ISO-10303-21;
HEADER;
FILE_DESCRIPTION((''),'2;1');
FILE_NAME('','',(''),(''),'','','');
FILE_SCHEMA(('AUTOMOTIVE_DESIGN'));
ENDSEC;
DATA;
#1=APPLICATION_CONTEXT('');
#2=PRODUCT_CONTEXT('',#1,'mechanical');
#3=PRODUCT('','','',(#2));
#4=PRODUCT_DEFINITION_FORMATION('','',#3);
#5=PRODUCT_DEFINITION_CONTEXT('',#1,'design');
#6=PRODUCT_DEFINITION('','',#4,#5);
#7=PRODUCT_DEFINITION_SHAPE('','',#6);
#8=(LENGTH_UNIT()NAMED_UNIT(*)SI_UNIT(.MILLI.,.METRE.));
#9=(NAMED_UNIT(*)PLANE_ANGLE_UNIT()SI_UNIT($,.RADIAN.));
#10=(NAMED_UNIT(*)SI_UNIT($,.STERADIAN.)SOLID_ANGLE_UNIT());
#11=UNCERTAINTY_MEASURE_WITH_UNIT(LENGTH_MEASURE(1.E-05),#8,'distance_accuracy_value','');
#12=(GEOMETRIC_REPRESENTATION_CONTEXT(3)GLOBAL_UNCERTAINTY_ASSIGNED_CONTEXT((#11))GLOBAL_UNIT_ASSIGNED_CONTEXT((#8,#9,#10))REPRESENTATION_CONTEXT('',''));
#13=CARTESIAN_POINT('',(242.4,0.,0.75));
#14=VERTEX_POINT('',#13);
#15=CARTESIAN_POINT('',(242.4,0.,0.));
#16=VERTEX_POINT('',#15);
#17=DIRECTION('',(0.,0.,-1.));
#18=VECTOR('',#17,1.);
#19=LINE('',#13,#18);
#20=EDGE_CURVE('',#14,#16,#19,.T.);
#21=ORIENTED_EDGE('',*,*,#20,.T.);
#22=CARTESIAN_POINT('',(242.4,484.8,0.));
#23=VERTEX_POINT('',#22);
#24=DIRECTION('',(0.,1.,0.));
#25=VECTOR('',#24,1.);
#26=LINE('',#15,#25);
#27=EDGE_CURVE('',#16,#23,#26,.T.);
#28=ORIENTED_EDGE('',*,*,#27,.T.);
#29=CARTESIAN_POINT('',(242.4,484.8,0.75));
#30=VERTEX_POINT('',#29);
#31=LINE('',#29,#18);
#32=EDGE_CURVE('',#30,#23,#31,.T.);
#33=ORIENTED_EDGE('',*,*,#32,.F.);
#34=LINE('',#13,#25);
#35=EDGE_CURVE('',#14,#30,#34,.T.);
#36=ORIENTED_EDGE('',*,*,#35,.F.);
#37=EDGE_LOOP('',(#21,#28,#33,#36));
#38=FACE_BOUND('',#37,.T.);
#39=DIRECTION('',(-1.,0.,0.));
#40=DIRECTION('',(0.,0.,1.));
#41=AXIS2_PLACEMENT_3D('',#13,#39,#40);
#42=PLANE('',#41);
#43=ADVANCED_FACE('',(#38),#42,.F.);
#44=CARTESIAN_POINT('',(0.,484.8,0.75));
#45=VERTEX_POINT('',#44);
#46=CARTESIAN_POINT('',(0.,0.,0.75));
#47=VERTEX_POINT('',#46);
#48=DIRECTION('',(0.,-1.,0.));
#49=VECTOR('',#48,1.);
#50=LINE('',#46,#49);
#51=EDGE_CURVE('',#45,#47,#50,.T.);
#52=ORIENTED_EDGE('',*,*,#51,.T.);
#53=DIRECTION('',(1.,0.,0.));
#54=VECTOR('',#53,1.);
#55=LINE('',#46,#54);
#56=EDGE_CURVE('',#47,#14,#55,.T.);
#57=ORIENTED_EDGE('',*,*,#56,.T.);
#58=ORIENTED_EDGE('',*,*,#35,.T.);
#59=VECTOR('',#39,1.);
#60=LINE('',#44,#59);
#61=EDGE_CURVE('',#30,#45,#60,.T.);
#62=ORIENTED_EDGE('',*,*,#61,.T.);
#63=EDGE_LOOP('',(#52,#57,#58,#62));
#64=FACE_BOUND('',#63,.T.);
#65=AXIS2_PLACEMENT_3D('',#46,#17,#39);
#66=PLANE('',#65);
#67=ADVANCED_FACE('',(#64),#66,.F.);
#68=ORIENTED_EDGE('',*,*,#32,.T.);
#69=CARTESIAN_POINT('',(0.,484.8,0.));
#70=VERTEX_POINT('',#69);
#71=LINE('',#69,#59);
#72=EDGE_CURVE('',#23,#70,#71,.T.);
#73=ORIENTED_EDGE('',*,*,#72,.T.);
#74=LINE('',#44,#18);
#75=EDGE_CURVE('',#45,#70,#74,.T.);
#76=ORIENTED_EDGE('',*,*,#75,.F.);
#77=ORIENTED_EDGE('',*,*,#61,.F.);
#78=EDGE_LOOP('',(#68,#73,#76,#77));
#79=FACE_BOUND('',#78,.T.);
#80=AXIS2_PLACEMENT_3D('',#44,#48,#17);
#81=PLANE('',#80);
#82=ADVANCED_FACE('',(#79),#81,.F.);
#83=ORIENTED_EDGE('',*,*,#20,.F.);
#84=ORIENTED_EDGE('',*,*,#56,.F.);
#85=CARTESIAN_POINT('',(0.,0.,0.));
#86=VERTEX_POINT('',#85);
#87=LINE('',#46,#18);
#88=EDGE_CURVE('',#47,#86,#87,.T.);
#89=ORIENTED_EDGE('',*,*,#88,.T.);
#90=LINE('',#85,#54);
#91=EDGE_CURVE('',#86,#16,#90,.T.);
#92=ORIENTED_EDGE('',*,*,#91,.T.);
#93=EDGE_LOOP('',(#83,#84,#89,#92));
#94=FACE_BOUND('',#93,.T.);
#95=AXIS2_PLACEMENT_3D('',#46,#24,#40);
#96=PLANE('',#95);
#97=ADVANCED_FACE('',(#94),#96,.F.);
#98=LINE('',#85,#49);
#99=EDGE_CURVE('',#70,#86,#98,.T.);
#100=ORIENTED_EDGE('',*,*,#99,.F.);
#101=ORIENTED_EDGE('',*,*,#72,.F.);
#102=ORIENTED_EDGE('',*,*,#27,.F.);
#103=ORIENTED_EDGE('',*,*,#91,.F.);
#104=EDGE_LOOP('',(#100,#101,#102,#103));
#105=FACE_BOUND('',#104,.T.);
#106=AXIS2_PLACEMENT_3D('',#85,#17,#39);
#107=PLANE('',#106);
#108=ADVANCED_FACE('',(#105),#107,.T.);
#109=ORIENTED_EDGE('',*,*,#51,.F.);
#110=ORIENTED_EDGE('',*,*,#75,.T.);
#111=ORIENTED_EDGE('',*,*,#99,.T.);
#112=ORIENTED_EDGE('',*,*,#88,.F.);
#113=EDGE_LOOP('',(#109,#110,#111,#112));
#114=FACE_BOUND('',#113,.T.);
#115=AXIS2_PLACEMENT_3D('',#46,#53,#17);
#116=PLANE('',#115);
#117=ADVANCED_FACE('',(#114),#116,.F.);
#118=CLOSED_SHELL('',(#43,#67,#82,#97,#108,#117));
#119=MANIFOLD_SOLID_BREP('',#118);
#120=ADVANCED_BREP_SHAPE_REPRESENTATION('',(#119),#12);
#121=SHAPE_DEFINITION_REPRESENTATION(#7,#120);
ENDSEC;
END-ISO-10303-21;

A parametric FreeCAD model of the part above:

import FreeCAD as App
import Part
import Sketcher
from FreeCAD import Vector


def add_polygon(sketch, points):
    """Adds a closed chain of lines whose ends are joined by coincident constraints."""
    first, n = sketch.GeometryCount, len(points)
    for a, b in zip(points, points[1:] + points[:1]):
        sketch.addGeometry(Part.LineSegment(App.Vector(*a, 0), App.Vector(*b, 0)), False)
    for i in range(n):
        sketch.addConstraint(Sketcher.Constraint("Coincident", first + i, 2, first + (i + 1) % n, 1))

doc = App.newDocument("Part")
body = doc.addObject("PartDesign::Body", "Body")

sketch1 = doc.addObject("Sketcher::SketchObject", "Sketch")
body.addObject(sketch1)
sketch1.AttachmentSupport = (doc.XY_Plane, [""])
sketch1.MapMode = "FlatFace"
add_polygon(sketch1, [(0, 485), (0, 0), (242, 0), (242, 485)])
sketch1.addConstraint(Sketcher.Constraint("Vertical", 0))
sketch1.addConstraint(Sketcher.Constraint("Horizontal", 1))
sketch1.addConstraint(Sketcher.Constraint("Vertical", 2))
sketch1.addConstraint(Sketcher.Constraint("Horizontal", 3))
sketch1.addConstraint(Sketcher.Constraint("Coincident", 0, 2, -1, 1))
sketch1.addConstraint(Sketcher.Constraint("DistanceX", 1, 1, 1, 2, 242.4))
sketch1.addConstraint(Sketcher.Constraint("DistanceY", 0, 2, 0, 1, 484.8))
pad1 = doc.addObject("PartDesign::Pad", "Pad")
body.addObject(pad1)
pad1.Profile = sketch1
pad1.Length = 0.75

doc.recompute()
